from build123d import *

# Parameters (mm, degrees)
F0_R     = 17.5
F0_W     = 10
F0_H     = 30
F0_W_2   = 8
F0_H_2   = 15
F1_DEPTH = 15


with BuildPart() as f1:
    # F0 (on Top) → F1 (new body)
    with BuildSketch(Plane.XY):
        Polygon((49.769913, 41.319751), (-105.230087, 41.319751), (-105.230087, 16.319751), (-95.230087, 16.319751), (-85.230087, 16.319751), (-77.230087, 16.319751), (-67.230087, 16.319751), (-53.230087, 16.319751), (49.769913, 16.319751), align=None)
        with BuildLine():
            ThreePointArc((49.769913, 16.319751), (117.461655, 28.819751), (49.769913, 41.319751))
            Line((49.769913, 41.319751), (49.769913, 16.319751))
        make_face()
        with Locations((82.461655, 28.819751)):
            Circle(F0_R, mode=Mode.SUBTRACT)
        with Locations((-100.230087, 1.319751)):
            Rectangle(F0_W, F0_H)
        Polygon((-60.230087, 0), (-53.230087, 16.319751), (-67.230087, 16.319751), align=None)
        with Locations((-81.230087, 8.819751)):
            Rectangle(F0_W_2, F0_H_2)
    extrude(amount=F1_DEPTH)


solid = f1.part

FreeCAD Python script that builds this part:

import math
import FreeCAD as App
import Part
import Sketcher
from FreeCAD import Vector
Q = App.Units.Quantity

doc = App.newDocument("Part")
body = doc.addObject("PartDesign::Body", "Body")

# Sketch on XY plane
sketch1 = body.newObject("Sketcher::SketchObject", "Sketch")
sketch1.AttachmentSupport = (doc.getObject("XY_Plane"), [""])
sketch1.MapMode = "FlatFace"
sketch1.addGeometry(Part.LineSegment(Vector(50, 41, 0), Vector(-105, 41, 0)), False)
sketch1.addGeometry(Part.LineSegment(Vector(-105, 41, 0), Vector(-105, -14, 0)), False)
sketch1.addGeometry(Part.LineSegment(Vector(-105, -14, 0), Vector(-95, -14, 0)), False)
sketch1.addGeometry(Part.LineSegment(Vector(-95, -14, 0), Vector(-95, 16, 0)), False)
sketch1.addGeometry(Part.LineSegment(Vector(-95, 16, 0), Vector(-85, 16, 0)), False)
sketch1.addGeometry(Part.LineSegment(Vector(-85, 16, 0), Vector(-85, 1, 0)), False)
sketch1.addGeometry(Part.LineSegment(Vector(-85, 1, 0), Vector(-77, 1, 0)), False)
sketch1.addGeometry(Part.LineSegment(Vector(-77, 1, 0), Vector(-77, 16, 0)), False)
sketch1.addGeometry(Part.LineSegment(Vector(-77, 16, 0), Vector(-67, 16, 0)), False)
sketch1.addGeometry(Part.LineSegment(Vector(-67, 16, 0), Vector(-60, 0, 0)), False)
sketch1.addGeometry(Part.LineSegment(Vector(-60, 0, 0), Vector(-53, 16, 0)), False)
sketch1.addGeometry(Part.LineSegment(Vector(-53, 16, 0), Vector(50, 16, 0)), False)
sketch1.addGeometry(Part.ArcOfCircle(Part.Circle(Vector(82, 29, 0), Vector(0, 0, 1), 35), math.radians(-159), math.radians(159)), False)
sketch1.addGeometry(Part.Circle(Vector(82, 29, 0), Vector(0, 0, 1), 18), False)
sketch1.addConstraint(Sketcher.Constraint("Coincident", 0, 2, 1, 1))
sketch1.addConstraint(Sketcher.Constraint("Coincident", 1, 2, 2, 1))
sketch1.addConstraint(Sketcher.Constraint("Coincident", 2, 2, 3, 1))
sketch1.addConstraint(Sketcher.Constraint("Coincident", 3, 2, 4, 1))
sketch1.addConstraint(Sketcher.Constraint("Coincident", 4, 2, 5, 1))
sketch1.addConstraint(Sketcher.Constraint("Coincident", 5, 2, 6, 1))
sketch1.addConstraint(Sketcher.Constraint("Coincident", 6, 2, 7, 1))
sketch1.addConstraint(Sketcher.Constraint("Coincident", 7, 2, 8, 1))
sketch1.addConstraint(Sketcher.Constraint("Coincident", 8, 2, 9, 1))
sketch1.addConstraint(Sketcher.Constraint("Coincident", 9, 2, 10, 1))
sketch1.addConstraint(Sketcher.Constraint("Coincident", 10, 2, 11, 1))
sketch1.addConstraint(Sketcher.Constraint("Coincident", 11, 2, 12, 1))
sketch1.addConstraint(Sketcher.Constraint("Coincident", 12, 2, 0, 1))
sketch1.addConstraint(Sketcher.Constraint("Horizontal", 0))
sketch1.addConstraint(Sketcher.Constraint("Vertical", 1))
sketch1.addConstraint(Sketcher.Constraint("Horizontal", 2))
sketch1.addConstraint(Sketcher.Constraint("Vertical", 3))
sketch1.addConstraint(Sketcher.Constraint("Horizontal", 4))
sketch1.addConstraint(Sketcher.Constraint("Vertical", 5))
sketch1.addConstraint(Sketcher.Constraint("Horizontal", 6))
sketch1.addConstraint(Sketcher.Constraint("Vertical", 7))
sketch1.addConstraint(Sketcher.Constraint("Horizontal", 8))
sketch1.addConstraint(Sketcher.Constraint("Horizontal", 11))
sketch1.addConstraint(Sketcher.Constraint("Coincident", 13, 3, 12, 3))
sketch1.addConstraint(Sketcher.Constraint("PointOnObject", 9, 2, -1))
sketch1.addConstraint(Sketcher.Constraint("Horizontal", 4, 2, 7, 2))
sketch1.addConstraint(Sketcher.Constraint("Horizontal", 8, 2, 10, 2))
sketch1.addConstraint(Sketcher.Constraint("Vertical", 11, 2, 12, 2))
sketch1.addConstraint(Sketcher.Constraint("Equal", 2, 4))
sketch1.addConstraint(Sketcher.Constraint("Equal", 4, 8))
sketch1.addConstraint(Sketcher.Constraint("Equal", 9, 10))
sketch1.addConstraint(Sketcher.Constraint("Diameter", 13, Q("35 mm")))
sketch1.addConstraint(Sketcher.Constraint("Radius", 12, Q("35 mm")))
sketch1.addConstraint(Sketcher.Constraint("DistanceX", 0, 2, 0, 1, Q("155 mm")))
sketch1.addConstraint(Sketcher.Constraint("DistanceX", 2, 1, 2, 2, Q("10 mm")))
sketch1.addConstraint(Sketcher.Constraint("DistanceX", 6, 1, 6, 2, Q("8 mm")))
sketch1.addConstraint(Sketcher.Constraint("DistanceX", 11, 1, 11, 2, Q("103 mm")))
sketch1.addConstraint(Sketcher.Constraint("DistanceY", 1, 2, 1, 1, Q("55 mm")))
sketch1.addConstraint(Sketcher.Constraint("DistanceY", 3, 1, 3, 2, Q("30 mm")))
sketch1.addConstraint(Sketcher.Constraint("DistanceY", 5, 2, 5, 1, Q("15 mm")))
sketch1.addConstraint(Sketcher.Constraint("DistanceY", -1, 1, 12, 3, Q("28.819751 mm")))
sketch1.addConstraint(Sketcher.Constraint("DistanceX", -1, 1, 12, 3, Q("82.461655 mm")))
pad1 = body.newObject("PartDesign::Pad", "Pad")
pad1.Profile = sketch1
pad1.Length = 15

doc.recompute()
